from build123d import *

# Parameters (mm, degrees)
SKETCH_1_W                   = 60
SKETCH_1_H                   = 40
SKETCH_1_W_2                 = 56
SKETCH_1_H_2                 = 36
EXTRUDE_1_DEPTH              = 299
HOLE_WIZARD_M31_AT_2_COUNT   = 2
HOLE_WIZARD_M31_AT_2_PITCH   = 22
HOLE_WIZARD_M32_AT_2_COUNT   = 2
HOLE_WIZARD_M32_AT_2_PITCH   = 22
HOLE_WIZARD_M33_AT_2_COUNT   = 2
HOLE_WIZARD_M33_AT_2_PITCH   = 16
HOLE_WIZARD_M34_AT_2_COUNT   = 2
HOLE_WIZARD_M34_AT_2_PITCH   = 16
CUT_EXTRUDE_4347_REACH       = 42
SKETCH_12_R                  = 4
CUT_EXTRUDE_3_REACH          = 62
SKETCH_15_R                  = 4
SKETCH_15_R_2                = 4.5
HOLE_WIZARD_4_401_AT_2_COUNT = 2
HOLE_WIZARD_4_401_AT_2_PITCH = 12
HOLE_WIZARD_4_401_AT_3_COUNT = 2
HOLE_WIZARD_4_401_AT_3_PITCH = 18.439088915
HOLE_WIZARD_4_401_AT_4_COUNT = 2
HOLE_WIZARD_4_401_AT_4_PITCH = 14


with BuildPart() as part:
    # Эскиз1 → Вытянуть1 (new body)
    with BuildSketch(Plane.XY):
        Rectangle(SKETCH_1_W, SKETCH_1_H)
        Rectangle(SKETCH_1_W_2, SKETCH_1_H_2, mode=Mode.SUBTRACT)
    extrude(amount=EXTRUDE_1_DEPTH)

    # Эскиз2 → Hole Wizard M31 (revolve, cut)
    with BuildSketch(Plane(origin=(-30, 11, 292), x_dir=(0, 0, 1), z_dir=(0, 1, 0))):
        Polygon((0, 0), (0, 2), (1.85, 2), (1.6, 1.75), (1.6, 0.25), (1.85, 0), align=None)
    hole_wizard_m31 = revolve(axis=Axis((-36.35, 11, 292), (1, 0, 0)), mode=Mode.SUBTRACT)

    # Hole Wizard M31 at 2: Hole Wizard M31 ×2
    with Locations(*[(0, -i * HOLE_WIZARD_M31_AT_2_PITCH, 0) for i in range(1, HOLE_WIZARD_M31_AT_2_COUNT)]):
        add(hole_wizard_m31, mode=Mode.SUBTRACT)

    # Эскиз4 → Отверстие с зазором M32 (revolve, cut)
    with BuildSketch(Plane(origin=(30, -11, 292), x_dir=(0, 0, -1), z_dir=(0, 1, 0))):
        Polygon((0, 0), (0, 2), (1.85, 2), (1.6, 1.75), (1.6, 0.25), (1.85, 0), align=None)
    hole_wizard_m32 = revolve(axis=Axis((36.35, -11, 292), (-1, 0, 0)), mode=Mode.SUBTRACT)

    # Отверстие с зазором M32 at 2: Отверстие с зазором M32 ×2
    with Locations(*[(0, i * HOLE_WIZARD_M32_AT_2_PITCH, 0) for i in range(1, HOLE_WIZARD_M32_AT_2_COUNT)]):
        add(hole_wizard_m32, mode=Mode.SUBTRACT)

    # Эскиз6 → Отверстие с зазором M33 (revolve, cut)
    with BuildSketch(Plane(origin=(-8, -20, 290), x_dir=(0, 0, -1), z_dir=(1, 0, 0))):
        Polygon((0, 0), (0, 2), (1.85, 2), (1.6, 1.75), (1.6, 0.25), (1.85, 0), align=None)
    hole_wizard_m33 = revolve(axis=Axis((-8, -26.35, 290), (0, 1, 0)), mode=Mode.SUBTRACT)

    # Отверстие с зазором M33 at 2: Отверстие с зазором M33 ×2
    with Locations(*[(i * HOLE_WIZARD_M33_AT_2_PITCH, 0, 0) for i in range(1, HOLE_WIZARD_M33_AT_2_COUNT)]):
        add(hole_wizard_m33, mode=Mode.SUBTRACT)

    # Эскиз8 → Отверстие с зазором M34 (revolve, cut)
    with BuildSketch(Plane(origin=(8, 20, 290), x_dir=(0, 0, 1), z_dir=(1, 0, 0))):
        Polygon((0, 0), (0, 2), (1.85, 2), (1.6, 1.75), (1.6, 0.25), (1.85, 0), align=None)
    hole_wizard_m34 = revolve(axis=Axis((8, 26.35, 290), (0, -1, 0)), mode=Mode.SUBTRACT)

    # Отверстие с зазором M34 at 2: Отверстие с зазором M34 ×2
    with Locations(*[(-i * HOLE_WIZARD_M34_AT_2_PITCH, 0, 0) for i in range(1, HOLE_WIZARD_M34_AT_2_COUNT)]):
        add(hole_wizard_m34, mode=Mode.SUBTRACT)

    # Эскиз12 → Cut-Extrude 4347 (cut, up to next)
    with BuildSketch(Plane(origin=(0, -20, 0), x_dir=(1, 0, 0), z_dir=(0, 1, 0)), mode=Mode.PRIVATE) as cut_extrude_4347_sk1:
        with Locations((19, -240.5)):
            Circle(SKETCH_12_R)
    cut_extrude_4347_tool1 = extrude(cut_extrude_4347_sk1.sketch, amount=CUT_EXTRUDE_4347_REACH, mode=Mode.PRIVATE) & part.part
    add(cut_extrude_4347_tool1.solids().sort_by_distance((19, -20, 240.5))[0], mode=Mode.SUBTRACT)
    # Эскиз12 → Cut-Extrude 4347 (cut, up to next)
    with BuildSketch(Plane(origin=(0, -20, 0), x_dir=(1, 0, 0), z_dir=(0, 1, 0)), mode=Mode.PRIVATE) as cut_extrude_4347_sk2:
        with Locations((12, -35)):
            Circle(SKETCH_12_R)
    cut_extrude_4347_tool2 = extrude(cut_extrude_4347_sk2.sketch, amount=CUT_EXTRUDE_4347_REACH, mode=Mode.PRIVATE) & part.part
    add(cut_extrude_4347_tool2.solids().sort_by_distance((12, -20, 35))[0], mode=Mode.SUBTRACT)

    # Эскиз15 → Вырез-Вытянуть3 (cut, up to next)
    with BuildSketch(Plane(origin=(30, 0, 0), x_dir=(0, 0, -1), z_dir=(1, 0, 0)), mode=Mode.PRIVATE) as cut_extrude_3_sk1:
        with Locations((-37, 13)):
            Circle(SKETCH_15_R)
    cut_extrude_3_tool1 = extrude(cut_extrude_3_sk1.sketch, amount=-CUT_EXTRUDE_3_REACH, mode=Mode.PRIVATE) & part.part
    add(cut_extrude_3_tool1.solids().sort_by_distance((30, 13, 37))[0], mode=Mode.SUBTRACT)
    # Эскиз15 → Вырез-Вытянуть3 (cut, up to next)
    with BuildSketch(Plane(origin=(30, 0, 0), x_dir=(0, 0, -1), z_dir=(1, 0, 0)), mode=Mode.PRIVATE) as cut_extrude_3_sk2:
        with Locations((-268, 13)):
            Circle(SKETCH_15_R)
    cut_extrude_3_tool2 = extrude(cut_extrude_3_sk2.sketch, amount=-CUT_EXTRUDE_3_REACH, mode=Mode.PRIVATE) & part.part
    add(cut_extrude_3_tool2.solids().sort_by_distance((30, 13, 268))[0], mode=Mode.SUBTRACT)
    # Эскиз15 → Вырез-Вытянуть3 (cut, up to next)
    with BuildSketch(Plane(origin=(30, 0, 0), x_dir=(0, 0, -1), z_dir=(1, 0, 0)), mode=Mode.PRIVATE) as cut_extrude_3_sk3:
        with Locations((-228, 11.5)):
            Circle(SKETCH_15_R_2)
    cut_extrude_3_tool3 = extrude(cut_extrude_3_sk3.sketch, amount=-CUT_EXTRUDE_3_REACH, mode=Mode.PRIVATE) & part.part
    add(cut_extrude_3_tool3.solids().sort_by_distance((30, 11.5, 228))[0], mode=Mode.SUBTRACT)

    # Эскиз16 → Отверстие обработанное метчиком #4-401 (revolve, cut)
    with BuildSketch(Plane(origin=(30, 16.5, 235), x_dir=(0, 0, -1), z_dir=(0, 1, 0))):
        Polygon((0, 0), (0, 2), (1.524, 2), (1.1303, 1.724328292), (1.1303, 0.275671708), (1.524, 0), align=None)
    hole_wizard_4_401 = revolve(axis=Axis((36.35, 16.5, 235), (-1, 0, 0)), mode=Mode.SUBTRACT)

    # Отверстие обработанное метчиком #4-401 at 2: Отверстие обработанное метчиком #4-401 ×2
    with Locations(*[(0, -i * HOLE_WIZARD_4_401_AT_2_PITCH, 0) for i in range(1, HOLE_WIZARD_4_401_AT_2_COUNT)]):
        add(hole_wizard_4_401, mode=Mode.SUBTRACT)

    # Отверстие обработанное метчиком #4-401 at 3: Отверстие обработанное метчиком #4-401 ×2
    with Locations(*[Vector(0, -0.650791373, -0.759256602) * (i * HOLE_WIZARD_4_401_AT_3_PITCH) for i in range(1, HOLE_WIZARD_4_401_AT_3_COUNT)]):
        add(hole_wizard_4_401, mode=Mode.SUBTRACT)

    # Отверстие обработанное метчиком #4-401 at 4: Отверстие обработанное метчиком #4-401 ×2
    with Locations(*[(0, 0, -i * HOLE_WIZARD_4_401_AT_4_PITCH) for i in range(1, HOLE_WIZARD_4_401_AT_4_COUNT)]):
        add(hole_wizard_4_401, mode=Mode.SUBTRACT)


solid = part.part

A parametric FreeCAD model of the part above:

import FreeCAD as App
import Part
import Sketcher
Q = App.Units.Quantity


def add_polygon(sketch, points):
    """Adds a closed chain of lines whose ends are joined by coincident constraints."""
    first, n = sketch.GeometryCount, len(points)
    for a, b in zip(points, points[1:] + points[:1]):
        sketch.addGeometry(Part.LineSegment(App.Vector(*a, 0), App.Vector(*b, 0)), False)
    for i in range(n):
        sketch.addConstraint(Sketcher.Constraint("Coincident", first + i, 2, first + (i + 1) % n, 1))

doc = App.newDocument("Part")
body = doc.addObject("PartDesign::Body", "Body")

sketch1 = body.newObject("Sketcher::SketchObject", "Sketch")
sketch1.AttachmentSupport = (doc.getObject("XY_Plane"), [""])
sketch1.MapMode = "FlatFace"
add_polygon(sketch1, [(-30, 20), (-30, -20), (30, -20), (30, 20)])
add_polygon(sketch1, [(28, -18), (-28, -18), (-28, 18), (28, 18)])
sketch1.addConstraint([
    Sketcher.Constraint("Vertical", 0),
    Sketcher.Constraint("Horizontal", 1),
    Sketcher.Constraint("Vertical", 2),
    Sketcher.Constraint("Horizontal", 3),
    Sketcher.Constraint("Horizontal", 4),
    Sketcher.Constraint("Vertical", 5),
    Sketcher.Constraint("Horizontal", 6),
    Sketcher.Constraint("Vertical", 7),
    Sketcher.Constraint("Symmetric", 0, 2, 2, 2, -1, 1),
    Sketcher.Constraint("Symmetric", 4, 2, 6, 2, -1, 1),
    Sketcher.Constraint("DistanceX", 1, 1, 1, 2, Q("60 mm")),
    Sketcher.Constraint("DistanceX", 4, 2, 4, 1, Q("56 mm")),
    Sketcher.Constraint("DistanceY", 0, 2, 0, 1, Q("40 mm")),
    Sketcher.Constraint("DistanceY", 5, 1, 5, 2, Q("36 mm")),
])
pad1 = body.newObject("PartDesign::Pad", "Pad")
pad1.Profile = sketch1
pad1.Length = 299

sketch2 = body.newObject("Sketcher::SketchObject", "Sketch001")
sketch2.AttachmentSupport = (doc.getObject("XZ_Plane"), [""])
sketch2.MapMode = "FlatFace"
sketch2.AttachmentOffset = App.Placement(App.Vector(0, 0, -11), App.Rotation())
add_polygon(sketch2, [(-28, 292), (-30, 292), (-30, 293.85), (-29.75, 293.6), (-28.25, 293.6), (-28, 293.85)])
sketch2.addGeometry(Part.LineSegment(App.Vector(-30, 292, 0), App.Vector(-28, 292, 0)), True)
sketch2.addConstraint([
    Sketcher.Constraint("Horizontal", 0),
    Sketcher.Constraint("Vertical", 1),
    Sketcher.Constraint("Horizontal", 3),
    Sketcher.Constraint("Vertical", 5),
    Sketcher.Constraint("Horizontal", 6),
    Sketcher.Constraint("Coincident", 6, 1, 0, 2),
    Sketcher.Constraint("Perpendicular", 2, 4),
    Sketcher.Constraint("Horizontal", 1, 2, 4, 2),
    Sketcher.Constraint("Vertical", 4, 2, 6, 2),
    Sketcher.Constraint("Equal", 2, 4),
    Sketcher.Constraint("DistanceX", 0, 2, 0, 1, Q("2 mm")),
    Sketcher.Constraint("DistanceX", 3, 1, 3, 2, Q("1.5 mm")),
    Sketcher.Constraint("DistanceX", 0, 2, -1, 1, Q("30 mm")),
    Sketcher.Constraint("DistanceY", -1, 1, 0, 2, Q("292 mm")),
    Sketcher.Constraint("DistanceY", 1, 1, 1, 2, Q("1.85 mm")),
])
groove = body.newObject("PartDesign::Groove", "Groove")
groove.Profile = sketch2
groove.ReferenceAxis = (sketch2, ["Axis0"])
groove.Angle = 360
doc.recompute()

linearpattern = body.newObject("PartDesign::LinearPattern", "LinearPattern")
linearpattern.Originals = [groove]
linearpattern.Direction = (doc.getObject("Y_Axis"), [""])
linearpattern.Mode = "offset"
linearpattern.Offset = 22
linearpattern.Occurrences = 2
linearpattern.Reversed = True
body.Tip = linearpattern

sketch3 = body.newObject("Sketcher::SketchObject", "Sketch002")
sketch3.AttachmentSupport = (doc.getObject("XZ_Plane"), [""])
sketch3.MapMode = "FlatFace"
sketch3.AttachmentOffset = App.Placement(App.Vector(0, 0, 11), App.Rotation())
add_polygon(sketch3, [(28, 292), (30, 292), (30, 290.15), (29.75, 290.4), (28.25, 290.4), (28, 290.15)])
sketch3.addGeometry(Part.LineSegment(App.Vector(30, 292, 0), App.Vector(28, 292, 0)), True)
sketch3.addConstraint([
    Sketcher.Constraint("Horizontal", 0),
    Sketcher.Constraint("Vertical", 1),
    Sketcher.Constraint("Horizontal", 3),
    Sketcher.Constraint("Vertical", 5),
    Sketcher.Constraint("Horizontal", 6),
    Sketcher.Constraint("Coincident", 6, 1, 0, 2),
    Sketcher.Constraint("Perpendicular", 2, 4),
    Sketcher.Constraint("Horizontal", 1, 2, 4, 2),
    Sketcher.Constraint("Vertical", 4, 2, 6, 2),
    Sketcher.Constraint("Equal", 2, 4),
    Sketcher.Constraint("DistanceX", 0, 1, 0, 2, Q("2 mm")),
    Sketcher.Constraint("DistanceX", 3, 2, 3, 1, Q("1.5 mm")),
    Sketcher.Constraint("DistanceX", -1, 1, 0, 2, Q("30 mm")),
    Sketcher.Constraint("DistanceY", -1, 1, 0, 2, Q("292 mm")),
    Sketcher.Constraint("DistanceY", 1, 2, 1, 1, Q("1.85 mm")),
])
groove2 = body.newObject("PartDesign::Groove", "Groove001")
groove2.Profile = sketch3
groove2.ReferenceAxis = (sketch3, ["Axis0"])
groove2.Angle = 360
doc.recompute()

linearpattern2 = body.newObject("PartDesign::LinearPattern", "LinearPattern001")
linearpattern2.Originals = [groove2]
linearpattern2.Direction = (doc.getObject("Y_Axis"), [""])
linearpattern2.Mode = "offset"
linearpattern2.Offset = 22
linearpattern2.Occurrences = 2
body.Tip = linearpattern2

sketch4 = body.newObject("Sketcher::SketchObject", "Sketch003")
sketch4.AttachmentSupport = (doc.getObject("YZ_Plane"), [""])
sketch4.MapMode = "FlatFace"
sketch4.AttachmentOffset = App.Placement(App.Vector(0, 0, -8), App.Rotation())
add_polygon(sketch4, [(-18, 290), (-20, 290), (-20, 288.15), (-19.75, 288.4), (-18.25, 288.4), (-18, 288.15)])
sketch4.addGeometry(Part.LineSegment(App.Vector(-20, 290, 0), App.Vector(-18, 290, 0)), True)
sketch4.addConstraint([
    Sketcher.Constraint("Horizontal", 0),
    Sketcher.Constraint("Vertical", 1),
    Sketcher.Constraint("Horizontal", 3),
    Sketcher.Constraint("Vertical", 5),
    Sketcher.Constraint("Horizontal", 6),
    Sketcher.Constraint("Coincident", 6, 1, 0, 2),
    Sketcher.Constraint("Perpendicular", 2, 4),
    Sketcher.Constraint("Horizontal", 1, 2, 4, 2),
    Sketcher.Constraint("Vertical", 4, 2, 6, 2),
    Sketcher.Constraint("Equal", 2, 4),
    Sketcher.Constraint("DistanceX", 0, 2, 0, 1, Q("2 mm")),
    Sketcher.Constraint("DistanceX", 3, 1, 3, 2, Q("1.5 mm")),
    Sketcher.Constraint("DistanceX", 0, 2, -1, 1, Q("20 mm")),
    Sketcher.Constraint("DistanceY", -1, 1, 0, 2, Q("290 mm")),
    Sketcher.Constraint("DistanceY", 1, 2, 1, 1, Q("1.85 mm")),
])
groove3 = body.newObject("PartDesign::Groove", "Groove002")
groove3.Profile = sketch4
groove3.ReferenceAxis = (sketch4, ["Axis0"])
groove3.Angle = 360
doc.recompute()

linearpattern3 = body.newObject("PartDesign::LinearPattern", "LinearPattern002")
linearpattern3.Originals = [groove3]
linearpattern3.Direction = (doc.getObject("X_Axis"), [""])
linearpattern3.Mode = "offset"
linearpattern3.Offset = 16
linearpattern3.Occurrences = 2
body.Tip = linearpattern3

sketch5 = body.newObject("Sketcher::SketchObject", "Sketch004")
sketch5.AttachmentSupport = (doc.getObject("YZ_Plane"), [""])
sketch5.MapMode = "FlatFace"
sketch5.AttachmentOffset = App.Placement(App.Vector(0, 0, 8), App.Rotation())
add_polygon(sketch5, [(18, 290), (20, 290), (20, 291.85), (19.75, 291.6), (18.25, 291.6), (18, 291.85)])
sketch5.addGeometry(Part.LineSegment(App.Vector(20, 290, 0), App.Vector(18, 290, 0)), True)
sketch5.addConstraint([
    Sketcher.Constraint("Horizontal", 0),
    Sketcher.Constraint("Vertical", 1),
    Sketcher.Constraint("Horizontal", 3),
    Sketcher.Constraint("Vertical", 5),
    Sketcher.Constraint("Horizontal", 6),
    Sketcher.Constraint("Coincident", 6, 1, 0, 2),
    Sketcher.Constraint("Perpendicular", 2, 4),
    Sketcher.Constraint("Horizontal", 1, 2, 4, 2),
    Sketcher.Constraint("Vertical", 4, 2, 6, 2),
    Sketcher.Constraint("Equal", 2, 4),
    Sketcher.Constraint("DistanceX", 0, 1, 0, 2, Q("2 mm")),
    Sketcher.Constraint("DistanceX", 3, 2, 3, 1, Q("1.5 mm")),
    Sketcher.Constraint("DistanceX", -1, 1, 0, 2, Q("20 mm")),
    Sketcher.Constraint("DistanceY", -1, 1, 0, 2, Q("290 mm")),
    Sketcher.Constraint("DistanceY", 1, 1, 1, 2, Q("1.85 mm")),
])
groove4 = body.newObject("PartDesign::Groove", "Groove003")
groove4.Profile = sketch5
groove4.ReferenceAxis = (sketch5, ["Axis0"])
groove4.Angle = 360
doc.recompute()

linearpattern4 = body.newObject("PartDesign::LinearPattern", "LinearPattern003")
linearpattern4.Originals = [groove4]
linearpattern4.Direction = (doc.getObject("X_Axis"), [""])
linearpattern4.Mode = "offset"
linearpattern4.Offset = 16
linearpattern4.Occurrences = 2
linearpattern4.Reversed = True
body.Tip = linearpattern4

sketch6 = body.newObject("Sketcher::SketchObject", "Sketch005")
sketch6.AttachmentSupport = (doc.getObject("XZ_Plane"), [""])
sketch6.MapMode = "FlatFace"
sketch6.AttachmentOffset = App.Placement(App.Vector(0, 0, 20), App.Rotation())
sketch6.addGeometry(Part.Circle(App.Vector(19, 240.5, 0), App.Vector(0, 0, 1), 4), False)
sketch6.addConstraint([
    Sketcher.Constraint("Diameter", 0, Q("8 mm")),
    Sketcher.Constraint("DistanceX", -1, 1, 0, 3, Q("19 mm")),
    Sketcher.Constraint("DistanceY", -1, 1, 0, 3, Q("240.5 mm")),
])
pocket1 = body.newObject("PartDesign::Pocket", "Pocket")
pocket1.Profile = sketch6
pocket1.Type = "UpToFirst"

sketch7 = body.newObject("Sketcher::SketchObject", "Sketch006")
sketch7.AttachmentSupport = (doc.getObject("XZ_Plane"), [""])
sketch7.MapMode = "FlatFace"
sketch7.AttachmentOffset = App.Placement(App.Vector(0, 0, 20), App.Rotation())
sketch7.addGeometry(Part.Circle(App.Vector(12, 35, 0), App.Vector(0, 0, 1), 4), False)
sketch7.addConstraint([
    Sketcher.Constraint("Diameter", 0, Q("8 mm")),
    Sketcher.Constraint("DistanceX", -1, 1, 0, 3, Q("12 mm")),
    Sketcher.Constraint("DistanceY", -1, 1, 0, 3, Q("35 mm")),
])
pocket2 = body.newObject("PartDesign::Pocket", "Pocket001")
pocket2.Profile = sketch7
pocket2.Type = "UpToFirst"

sketch8 = body.newObject("Sketcher::SketchObject", "Sketch007")
sketch8.AttachmentSupport = (doc.getObject("YZ_Plane"), [""])
sketch8.MapMode = "FlatFace"
sketch8.AttachmentOffset = App.Placement(App.Vector(0, 0, 30), App.Rotation())
sketch8.addGeometry(Part.Circle(App.Vector(13, 37, 0), App.Vector(0, 0, 1), 4), False)
sketch8.addConstraint([
    Sketcher.Constraint("Diameter", 0, Q("8 mm")),
    Sketcher.Constraint("DistanceX", -1, 1, 0, 3, Q("13 mm")),
    Sketcher.Constraint("DistanceY", -1, 1, 0, 3, Q("37 mm")),
])
pocket3 = body.newObject("PartDesign::Pocket", "Pocket002")
pocket3.Profile = sketch8
pocket3.Type = "UpToFirst"

sketch9 = body.newObject("Sketcher::SketchObject", "Sketch008")
sketch9.AttachmentSupport = (doc.getObject("YZ_Plane"), [""])
sketch9.MapMode = "FlatFace"
sketch9.AttachmentOffset = App.Placement(App.Vector(0, 0, 30), App.Rotation())
sketch9.addGeometry(Part.Circle(App.Vector(13, 268, 0), App.Vector(0, 0, 1), 4), False)
sketch9.addConstraint([
    Sketcher.Constraint("Diameter", 0, Q("8 mm")),
    Sketcher.Constraint("DistanceX", -1, 1, 0, 3, Q("13 mm")),
    Sketcher.Constraint("DistanceY", -1, 1, 0, 3, Q("268 mm")),
])
pocket4 = body.newObject("PartDesign::Pocket", "Pocket003")
pocket4.Profile = sketch9
pocket4.Type = "UpToFirst"

sketch10 = body.newObject("Sketcher::SketchObject", "Sketch009")
sketch10.AttachmentSupport = (doc.getObject("YZ_Plane"), [""])
sketch10.MapMode = "FlatFace"
sketch10.AttachmentOffset = App.Placement(App.Vector(0, 0, 30), App.Rotation())
sketch10.addGeometry(Part.Circle(App.Vector(11.5, 228, 0), App.Vector(0, 0, 1), 4.5), False)
sketch10.addConstraint([
    Sketcher.Constraint("Diameter", 0, Q("9 mm")),
    Sketcher.Constraint("DistanceY", -1, 1, 0, 3, Q("228 mm")),
    Sketcher.Constraint("DistanceX", -1, 1, 0, 3, Q("11.5 mm")),
])
pocket5 = body.newObject("PartDesign::Pocket", "Pocket004")
pocket5.Profile = sketch10
pocket5.Type = "UpToFirst"

sketch11 = body.newObject("Sketcher::SketchObject", "Sketch010")
sketch11.AttachmentSupport = (doc.getObject("XZ_Plane"), [""])
sketch11.MapMode = "FlatFace"
sketch11.AttachmentOffset = App.Placement(App.Vector(0, 0, -16.5), App.Rotation())
add_polygon(sketch11, [(28, 235), (30, 235), (30, 233.48), (29.72, 233.87), (28.28, 233.87), (28, 233.48)])
sketch11.addGeometry(Part.LineSegment(App.Vector(30, 235, 0), App.Vector(28, 235, 0)), True)
sketch11.addConstraint([
    Sketcher.Constraint("Horizontal", 0),
    Sketcher.Constraint("Vertical", 1),
    Sketcher.Constraint("Horizontal", 3),
    Sketcher.Constraint("Vertical", 5),
    Sketcher.Constraint("Horizontal", 6),
    Sketcher.Constraint("Coincident", 6, 1, 0, 2),
    Sketcher.Constraint("Horizontal", 1, 2, 4, 2),
    Sketcher.Constraint("Vertical", 4, 2, 6, 2),
    Sketcher.Constraint("Equal", 2, 4),
    Sketcher.Constraint("DistanceX", 0, 1, 0, 2, Q("2 mm")),
    Sketcher.Constraint("Angle", 2, Q("125 deg")),
    Sketcher.Constraint("DistanceX", -1, 1, 0, 2, Q("30 mm")),
    Sketcher.Constraint("DistanceY", -1, 1, 0, 2, Q("235 mm")),
    Sketcher.Constraint("DistanceY", 1, 2, 1, 1, Q("1.524 mm")),
    Sketcher.Constraint("DistanceY", -1, 1, 2, 2, Q("233.8697 mm")),
])
groove5 = body.newObject("PartDesign::Groove", "Groove004")
groove5.Profile = sketch11
groove5.ReferenceAxis = (sketch11, ["Axis0"])
groove5.Angle = 360
doc.recompute()

linearpattern5 = body.newObject("PartDesign::LinearPattern", "LinearPattern004")
linearpattern5.Originals = [groove5]
linearpattern5.Direction = (doc.getObject("Y_Axis"), [""])
linearpattern5.Mode = "offset"
linearpattern5.Offset = 12
linearpattern5.Occurrences = 2
linearpattern5.Reversed = True
body.Tip = linearpattern5
doc.recompute()

datumline = body.newObject("PartDesign::Line", "DatumLine")
datumline.Placement = App.Placement(App.Vector(0, 0, 0), App.Rotation(App.Vector(0, 0, 1), App.Vector(0, -0.650791373, -0.759256602)))
linearpattern6 = body.newObject("PartDesign::LinearPattern", "LinearPattern005")
linearpattern6.Originals = [groove5]
linearpattern6.Direction = (datumline, [""])
linearpattern6.Mode = "offset"
linearpattern6.Offset = 18.439089
linearpattern6.Occurrences = 2
body.Tip = linearpattern6
doc.recompute()

linearpattern7 = body.newObject("PartDesign::LinearPattern", "LinearPattern006")
linearpattern7.Originals = [groove5]
linearpattern7.Direction = (doc.getObject("Z_Axis"), [""])
linearpattern7.Mode = "offset"
linearpattern7.Offset = 14
linearpattern7.Occurrences = 2
linearpattern7.Reversed = True
body.Tip = linearpattern7

doc.recompute()
